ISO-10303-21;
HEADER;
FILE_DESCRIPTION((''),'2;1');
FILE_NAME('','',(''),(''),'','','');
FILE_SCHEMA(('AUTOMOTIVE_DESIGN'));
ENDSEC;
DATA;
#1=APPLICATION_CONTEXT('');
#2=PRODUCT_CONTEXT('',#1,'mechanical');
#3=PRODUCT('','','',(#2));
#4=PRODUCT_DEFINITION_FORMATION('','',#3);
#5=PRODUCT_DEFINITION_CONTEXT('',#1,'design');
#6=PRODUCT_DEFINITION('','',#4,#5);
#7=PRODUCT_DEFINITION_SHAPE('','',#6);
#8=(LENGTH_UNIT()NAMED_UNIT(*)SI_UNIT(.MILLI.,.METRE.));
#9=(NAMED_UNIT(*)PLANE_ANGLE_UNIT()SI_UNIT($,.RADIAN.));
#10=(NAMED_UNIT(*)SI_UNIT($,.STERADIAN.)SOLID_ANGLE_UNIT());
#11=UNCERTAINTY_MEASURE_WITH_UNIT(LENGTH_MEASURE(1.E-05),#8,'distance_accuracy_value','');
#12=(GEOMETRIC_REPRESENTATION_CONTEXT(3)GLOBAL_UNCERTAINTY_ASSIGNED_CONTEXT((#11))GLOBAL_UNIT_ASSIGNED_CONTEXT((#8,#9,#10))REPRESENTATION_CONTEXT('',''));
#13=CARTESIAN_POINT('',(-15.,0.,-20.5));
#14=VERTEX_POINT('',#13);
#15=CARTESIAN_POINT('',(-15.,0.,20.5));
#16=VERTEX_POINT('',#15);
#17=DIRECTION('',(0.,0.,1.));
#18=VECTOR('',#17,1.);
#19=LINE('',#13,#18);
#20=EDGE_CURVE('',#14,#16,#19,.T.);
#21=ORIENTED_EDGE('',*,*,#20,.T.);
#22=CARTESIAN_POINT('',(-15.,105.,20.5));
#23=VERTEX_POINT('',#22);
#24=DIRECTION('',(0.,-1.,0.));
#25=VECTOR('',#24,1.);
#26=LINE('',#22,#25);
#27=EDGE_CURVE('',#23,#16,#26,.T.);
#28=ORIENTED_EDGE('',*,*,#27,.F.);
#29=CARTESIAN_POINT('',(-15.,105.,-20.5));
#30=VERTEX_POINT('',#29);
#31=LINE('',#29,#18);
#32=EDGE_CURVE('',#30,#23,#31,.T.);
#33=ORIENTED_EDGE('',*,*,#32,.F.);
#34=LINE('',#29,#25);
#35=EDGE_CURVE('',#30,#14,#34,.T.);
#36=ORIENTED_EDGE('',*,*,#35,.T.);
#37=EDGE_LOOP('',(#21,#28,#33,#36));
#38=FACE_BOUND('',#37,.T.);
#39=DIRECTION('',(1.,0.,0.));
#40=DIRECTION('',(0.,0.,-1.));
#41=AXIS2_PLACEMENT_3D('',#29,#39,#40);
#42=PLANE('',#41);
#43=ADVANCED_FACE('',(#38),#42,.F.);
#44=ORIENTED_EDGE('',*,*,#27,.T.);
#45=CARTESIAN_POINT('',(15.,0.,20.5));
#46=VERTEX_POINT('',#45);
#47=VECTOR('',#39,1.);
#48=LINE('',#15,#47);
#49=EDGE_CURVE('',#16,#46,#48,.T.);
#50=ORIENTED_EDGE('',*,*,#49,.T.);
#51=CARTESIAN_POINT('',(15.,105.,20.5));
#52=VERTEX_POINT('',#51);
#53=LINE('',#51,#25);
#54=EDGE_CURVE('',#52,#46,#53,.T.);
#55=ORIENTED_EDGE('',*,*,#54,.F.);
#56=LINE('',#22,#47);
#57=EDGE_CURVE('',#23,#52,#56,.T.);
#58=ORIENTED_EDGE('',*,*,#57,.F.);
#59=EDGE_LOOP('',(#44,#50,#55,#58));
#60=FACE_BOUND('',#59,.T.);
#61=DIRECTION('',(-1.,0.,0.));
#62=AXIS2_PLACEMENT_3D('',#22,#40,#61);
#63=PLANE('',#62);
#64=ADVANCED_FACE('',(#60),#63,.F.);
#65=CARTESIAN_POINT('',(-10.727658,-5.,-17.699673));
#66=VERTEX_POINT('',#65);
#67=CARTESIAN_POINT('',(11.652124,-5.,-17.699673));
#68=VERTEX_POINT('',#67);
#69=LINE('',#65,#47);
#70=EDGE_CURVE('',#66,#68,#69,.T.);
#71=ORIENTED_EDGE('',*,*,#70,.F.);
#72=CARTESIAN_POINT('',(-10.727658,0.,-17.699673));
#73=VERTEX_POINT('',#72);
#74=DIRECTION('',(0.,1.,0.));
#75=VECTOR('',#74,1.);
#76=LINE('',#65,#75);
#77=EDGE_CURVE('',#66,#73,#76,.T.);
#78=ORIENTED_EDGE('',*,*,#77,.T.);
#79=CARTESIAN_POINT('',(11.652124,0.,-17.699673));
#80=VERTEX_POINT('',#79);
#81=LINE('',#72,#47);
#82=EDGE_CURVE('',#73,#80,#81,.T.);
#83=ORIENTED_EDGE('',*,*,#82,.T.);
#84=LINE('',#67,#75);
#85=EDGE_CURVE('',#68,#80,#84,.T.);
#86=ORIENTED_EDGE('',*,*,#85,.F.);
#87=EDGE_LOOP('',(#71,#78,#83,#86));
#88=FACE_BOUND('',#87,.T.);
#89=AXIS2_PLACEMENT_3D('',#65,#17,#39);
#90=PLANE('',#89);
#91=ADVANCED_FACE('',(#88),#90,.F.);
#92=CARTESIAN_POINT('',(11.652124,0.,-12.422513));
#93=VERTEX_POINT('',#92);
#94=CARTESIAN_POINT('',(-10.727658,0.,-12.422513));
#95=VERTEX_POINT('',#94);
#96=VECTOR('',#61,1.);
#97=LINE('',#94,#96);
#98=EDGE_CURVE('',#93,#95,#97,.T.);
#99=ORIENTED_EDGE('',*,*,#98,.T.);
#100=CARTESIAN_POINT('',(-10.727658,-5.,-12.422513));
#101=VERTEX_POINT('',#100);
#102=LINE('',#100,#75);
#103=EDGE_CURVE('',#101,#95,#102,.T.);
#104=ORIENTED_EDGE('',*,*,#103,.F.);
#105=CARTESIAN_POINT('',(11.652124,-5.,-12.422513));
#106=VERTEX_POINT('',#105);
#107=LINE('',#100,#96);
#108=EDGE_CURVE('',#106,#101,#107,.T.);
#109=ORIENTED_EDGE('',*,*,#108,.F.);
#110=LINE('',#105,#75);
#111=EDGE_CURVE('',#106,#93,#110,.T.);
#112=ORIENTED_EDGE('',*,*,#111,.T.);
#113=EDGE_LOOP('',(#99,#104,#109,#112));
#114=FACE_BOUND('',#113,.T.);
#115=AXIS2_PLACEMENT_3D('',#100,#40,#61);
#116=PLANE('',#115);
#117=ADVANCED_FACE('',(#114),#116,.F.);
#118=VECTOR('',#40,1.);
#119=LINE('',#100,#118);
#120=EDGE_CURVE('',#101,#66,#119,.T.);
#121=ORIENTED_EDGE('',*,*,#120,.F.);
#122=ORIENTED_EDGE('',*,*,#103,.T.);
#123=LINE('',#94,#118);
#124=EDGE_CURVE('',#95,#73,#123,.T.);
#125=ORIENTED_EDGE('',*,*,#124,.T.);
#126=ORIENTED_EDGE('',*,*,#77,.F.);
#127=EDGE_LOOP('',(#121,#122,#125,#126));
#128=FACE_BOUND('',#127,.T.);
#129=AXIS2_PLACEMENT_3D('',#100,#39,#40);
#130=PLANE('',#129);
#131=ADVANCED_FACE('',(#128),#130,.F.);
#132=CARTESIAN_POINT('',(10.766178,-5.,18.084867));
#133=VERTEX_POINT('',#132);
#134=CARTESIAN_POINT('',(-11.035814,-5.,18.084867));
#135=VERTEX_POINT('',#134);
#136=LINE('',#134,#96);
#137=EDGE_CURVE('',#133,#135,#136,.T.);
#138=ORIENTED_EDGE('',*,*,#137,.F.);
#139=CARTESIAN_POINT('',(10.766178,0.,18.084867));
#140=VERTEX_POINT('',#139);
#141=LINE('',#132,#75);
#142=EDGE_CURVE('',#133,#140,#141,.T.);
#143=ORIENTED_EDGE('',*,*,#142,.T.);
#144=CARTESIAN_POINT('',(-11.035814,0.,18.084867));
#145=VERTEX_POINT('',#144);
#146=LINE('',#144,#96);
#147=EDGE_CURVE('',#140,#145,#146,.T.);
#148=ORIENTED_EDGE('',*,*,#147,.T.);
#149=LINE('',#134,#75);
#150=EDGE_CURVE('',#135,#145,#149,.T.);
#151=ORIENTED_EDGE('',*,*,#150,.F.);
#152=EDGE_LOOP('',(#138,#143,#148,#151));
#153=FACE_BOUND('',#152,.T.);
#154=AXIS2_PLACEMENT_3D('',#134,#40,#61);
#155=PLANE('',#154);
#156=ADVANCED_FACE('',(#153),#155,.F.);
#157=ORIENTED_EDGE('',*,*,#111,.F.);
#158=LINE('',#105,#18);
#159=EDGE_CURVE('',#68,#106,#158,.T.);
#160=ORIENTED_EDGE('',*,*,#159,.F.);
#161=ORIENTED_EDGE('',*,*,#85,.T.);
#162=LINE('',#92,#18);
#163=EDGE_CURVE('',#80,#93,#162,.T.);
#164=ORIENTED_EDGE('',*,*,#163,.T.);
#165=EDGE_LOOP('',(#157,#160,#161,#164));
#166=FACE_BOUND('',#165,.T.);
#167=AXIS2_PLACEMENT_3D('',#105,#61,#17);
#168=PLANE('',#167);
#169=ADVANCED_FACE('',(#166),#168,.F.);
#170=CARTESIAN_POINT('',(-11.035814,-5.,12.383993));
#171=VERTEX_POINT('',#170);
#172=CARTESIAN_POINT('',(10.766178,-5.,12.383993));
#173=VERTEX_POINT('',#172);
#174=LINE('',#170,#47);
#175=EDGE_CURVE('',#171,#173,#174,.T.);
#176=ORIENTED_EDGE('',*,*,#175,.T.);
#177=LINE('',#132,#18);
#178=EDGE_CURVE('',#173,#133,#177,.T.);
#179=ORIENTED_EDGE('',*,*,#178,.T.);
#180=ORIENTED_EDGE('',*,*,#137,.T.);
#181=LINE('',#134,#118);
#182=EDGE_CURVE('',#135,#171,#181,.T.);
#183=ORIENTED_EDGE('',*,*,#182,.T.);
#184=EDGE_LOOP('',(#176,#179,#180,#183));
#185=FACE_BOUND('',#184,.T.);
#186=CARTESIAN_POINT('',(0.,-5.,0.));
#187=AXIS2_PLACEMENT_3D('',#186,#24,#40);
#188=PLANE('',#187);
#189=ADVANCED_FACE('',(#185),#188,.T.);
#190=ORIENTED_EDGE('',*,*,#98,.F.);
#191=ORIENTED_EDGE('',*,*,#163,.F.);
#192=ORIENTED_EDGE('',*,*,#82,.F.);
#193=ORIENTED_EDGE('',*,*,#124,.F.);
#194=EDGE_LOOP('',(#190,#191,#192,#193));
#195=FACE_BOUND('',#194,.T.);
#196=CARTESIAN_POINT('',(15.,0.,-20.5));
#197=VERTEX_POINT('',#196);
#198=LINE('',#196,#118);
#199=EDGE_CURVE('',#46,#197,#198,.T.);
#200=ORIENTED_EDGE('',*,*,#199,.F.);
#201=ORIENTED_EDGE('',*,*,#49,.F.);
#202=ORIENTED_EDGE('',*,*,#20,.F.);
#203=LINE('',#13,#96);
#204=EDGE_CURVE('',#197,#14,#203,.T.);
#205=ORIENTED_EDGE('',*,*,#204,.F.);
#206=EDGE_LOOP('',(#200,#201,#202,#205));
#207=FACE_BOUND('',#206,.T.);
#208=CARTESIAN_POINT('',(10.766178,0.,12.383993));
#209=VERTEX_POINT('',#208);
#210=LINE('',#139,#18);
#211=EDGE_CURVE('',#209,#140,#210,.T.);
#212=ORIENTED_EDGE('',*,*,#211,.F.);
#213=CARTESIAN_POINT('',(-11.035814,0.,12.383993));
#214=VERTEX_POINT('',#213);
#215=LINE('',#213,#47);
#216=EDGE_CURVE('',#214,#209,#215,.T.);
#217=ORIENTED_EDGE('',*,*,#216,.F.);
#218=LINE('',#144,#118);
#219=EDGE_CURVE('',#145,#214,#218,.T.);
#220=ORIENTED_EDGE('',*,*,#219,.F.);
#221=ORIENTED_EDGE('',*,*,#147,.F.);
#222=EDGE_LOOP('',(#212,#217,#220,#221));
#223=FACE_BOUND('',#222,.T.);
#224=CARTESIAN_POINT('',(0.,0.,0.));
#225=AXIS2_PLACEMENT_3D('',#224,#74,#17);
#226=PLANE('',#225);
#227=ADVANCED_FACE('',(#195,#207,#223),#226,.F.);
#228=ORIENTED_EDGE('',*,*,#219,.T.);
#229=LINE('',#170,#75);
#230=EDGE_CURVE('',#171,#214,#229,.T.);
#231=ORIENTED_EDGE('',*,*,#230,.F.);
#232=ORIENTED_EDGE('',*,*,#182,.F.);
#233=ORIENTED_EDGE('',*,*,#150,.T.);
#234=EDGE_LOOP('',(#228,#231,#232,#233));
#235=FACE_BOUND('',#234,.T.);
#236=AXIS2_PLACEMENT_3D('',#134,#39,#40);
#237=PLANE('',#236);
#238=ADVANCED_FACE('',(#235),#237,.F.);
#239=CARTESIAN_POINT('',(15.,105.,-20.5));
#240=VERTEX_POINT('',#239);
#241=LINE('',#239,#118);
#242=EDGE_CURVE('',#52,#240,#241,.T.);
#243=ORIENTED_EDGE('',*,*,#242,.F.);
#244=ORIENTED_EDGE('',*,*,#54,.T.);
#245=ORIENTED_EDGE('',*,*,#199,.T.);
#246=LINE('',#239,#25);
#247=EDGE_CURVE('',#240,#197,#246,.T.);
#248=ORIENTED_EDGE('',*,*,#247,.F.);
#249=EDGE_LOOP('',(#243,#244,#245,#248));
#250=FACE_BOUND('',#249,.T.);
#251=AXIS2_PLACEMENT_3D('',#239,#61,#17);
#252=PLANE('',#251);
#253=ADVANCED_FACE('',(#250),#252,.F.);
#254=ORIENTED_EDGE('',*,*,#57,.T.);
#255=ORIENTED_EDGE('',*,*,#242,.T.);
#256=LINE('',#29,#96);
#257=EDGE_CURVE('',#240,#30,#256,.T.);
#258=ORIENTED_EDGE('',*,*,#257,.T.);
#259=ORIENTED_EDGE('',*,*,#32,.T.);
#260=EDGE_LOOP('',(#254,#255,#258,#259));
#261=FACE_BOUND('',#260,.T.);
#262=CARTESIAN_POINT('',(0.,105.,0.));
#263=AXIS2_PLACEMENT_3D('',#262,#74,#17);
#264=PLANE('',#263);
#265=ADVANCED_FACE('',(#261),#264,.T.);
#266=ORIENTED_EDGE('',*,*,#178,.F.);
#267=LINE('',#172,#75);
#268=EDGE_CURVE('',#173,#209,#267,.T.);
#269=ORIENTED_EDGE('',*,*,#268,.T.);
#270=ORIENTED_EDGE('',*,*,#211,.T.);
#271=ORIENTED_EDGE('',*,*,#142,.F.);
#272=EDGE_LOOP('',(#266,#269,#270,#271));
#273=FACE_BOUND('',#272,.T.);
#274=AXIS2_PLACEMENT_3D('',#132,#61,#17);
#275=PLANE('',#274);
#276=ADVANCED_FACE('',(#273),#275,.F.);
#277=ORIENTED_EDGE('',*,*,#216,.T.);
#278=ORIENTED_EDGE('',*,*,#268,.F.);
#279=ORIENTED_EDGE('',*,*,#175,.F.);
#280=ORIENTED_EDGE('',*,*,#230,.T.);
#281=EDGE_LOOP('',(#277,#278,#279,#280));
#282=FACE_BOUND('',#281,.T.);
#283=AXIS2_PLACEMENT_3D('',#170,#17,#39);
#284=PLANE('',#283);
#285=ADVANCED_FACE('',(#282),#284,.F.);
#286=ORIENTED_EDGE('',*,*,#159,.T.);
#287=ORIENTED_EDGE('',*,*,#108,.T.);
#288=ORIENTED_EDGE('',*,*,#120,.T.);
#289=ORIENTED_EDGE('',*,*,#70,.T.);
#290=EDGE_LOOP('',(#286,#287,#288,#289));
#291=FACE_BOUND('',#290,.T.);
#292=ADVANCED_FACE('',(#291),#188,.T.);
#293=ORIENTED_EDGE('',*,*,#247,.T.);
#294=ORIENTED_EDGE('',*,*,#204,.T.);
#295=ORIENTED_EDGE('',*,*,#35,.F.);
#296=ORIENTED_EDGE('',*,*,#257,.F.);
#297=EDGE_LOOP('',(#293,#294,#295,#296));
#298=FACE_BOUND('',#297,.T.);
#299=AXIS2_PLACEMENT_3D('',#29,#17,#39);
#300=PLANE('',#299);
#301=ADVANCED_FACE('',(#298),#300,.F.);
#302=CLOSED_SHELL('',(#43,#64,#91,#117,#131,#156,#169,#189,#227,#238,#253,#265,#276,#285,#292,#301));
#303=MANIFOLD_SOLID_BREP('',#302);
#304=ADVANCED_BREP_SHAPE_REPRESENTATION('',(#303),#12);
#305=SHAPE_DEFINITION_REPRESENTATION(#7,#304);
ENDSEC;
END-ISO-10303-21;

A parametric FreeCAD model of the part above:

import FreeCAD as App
import Part
import Sketcher
from FreeCAD import Vector
Q = App.Units.Quantity

doc = App.newDocument("Part")
params = doc.addObject("Spreadsheet::Sheet", "Params")
for row, (alias, value) in enumerate([
    ("sketch1_width", "30 mm"),
    ("sketch1_height", "41 mm"),
    ("pad1_length", "105 mm"),
    ("pad2_length", "5 mm"),
], start=1):
    params.set(f"A{row}", alias)
    params.set(f"B{row}", "=" + value)
    params.setAlias(f"B{row}", alias)

body = doc.addObject("PartDesign::Body", "Body")

sketch1 = doc.addObject("Sketcher::SketchObject", "Sketch")
body.addObject(sketch1)
sketch1.AttachmentSupport = (doc.XZ_Plane, [""])
sketch1.MapMode = "FlatFace"
sketch1.addGeometry([
    Part.LineSegment(Vector(-15, -20.5, 0), Vector(-15, 20.5, 0)),
    Part.LineSegment(Vector(-15, 20.5, 0), Vector(15, 20.5, 0)),
    Part.LineSegment(Vector(15, 20.5, 0), Vector(15, -20.5, 0)),
    Part.LineSegment(Vector(15, -20.5, 0), Vector(-15, -20.5, 0)),
], False)
sketch1.addConstraint([
    Sketcher.Constraint("Coincident", 0, 2, 1, 1),
    Sketcher.Constraint("Coincident", 1, 2, 2, 1),
    Sketcher.Constraint("Coincident", 2, 2, 3, 1),
    Sketcher.Constraint("Coincident", 3, 2, 0, 1),
    Sketcher.Constraint("Vertical", 0),
    Sketcher.Constraint("Horizontal", 1),
    Sketcher.Constraint("Vertical", 2),
    Sketcher.Constraint("Horizontal", 3),
    Sketcher.Constraint("Symmetric", 0, 2, 2, 2, -1, 1),
    Sketcher.Constraint("DistanceX", 1, 1, 1, 2, Q("30 mm")),
    Sketcher.Constraint("DistanceY", 0, 1, 0, 2, Q("41 mm")),
])
sketch1.setExpression("Constraints[9]", "Params.sketch1_width")
sketch1.setExpression("Constraints[10]", "Params.sketch1_height")
pad1 = doc.addObject("PartDesign::Pad", "Pad")
body.addObject(pad1)
pad1.Profile = sketch1
pad1.setExpression("Length", "Params.pad1_length")
pad1.Reversed = True

sketch2 = doc.addObject("Sketcher::SketchObject", "Sketch001")
body.addObject(sketch2)
sketch2.AttachmentSupport = (doc.XZ_Plane, [""])
sketch2.MapMode = "FlatFace"
sketch2.addGeometry([
    Part.LineSegment(Vector(-11.035814, 18.084867, 0), Vector(-11.035814, 12.383993, 0)),
    Part.LineSegment(Vector(-11.035814, 12.383993, 0), Vector(10.766178, 12.383993, 0)),
    Part.LineSegment(Vector(10.766178, 12.383993, 0), Vector(10.766178, 18.084867, 0)),
    Part.LineSegment(Vector(10.766178, 18.084867, 0), Vector(-11.035814, 18.084867, 0)),
    Part.LineSegment(Vector(-10.727658, -12.422513, 0), Vector(-10.727658, -17.699673, 0)),
    Part.LineSegment(Vector(-10.727658, -17.699673, 0), Vector(11.652124, -17.699673, 0)),
    Part.LineSegment(Vector(11.652124, -17.699673, 0), Vector(11.652124, -12.422513, 0)),
    Part.LineSegment(Vector(11.652124, -12.422513, 0), Vector(-10.727658, -12.422513, 0)),
], False)
sketch2.addConstraint([
    Sketcher.Constraint("Coincident", 0, 2, 1, 1),
    Sketcher.Constraint("Coincident", 1, 2, 2, 1),
    Sketcher.Constraint("Coincident", 2, 2, 3, 1),
    Sketcher.Constraint("Coincident", 3, 2, 0, 1),
    Sketcher.Constraint("Coincident", 4, 2, 5, 1),
    Sketcher.Constraint("Coincident", 5, 2, 6, 1),
    Sketcher.Constraint("Coincident", 6, 2, 7, 1),
    Sketcher.Constraint("Coincident", 7, 2, 4, 1),
    Sketcher.Constraint("Vertical", 0),
    Sketcher.Constraint("Horizontal", 1),
    Sketcher.Constraint("Vertical", 2),
    Sketcher.Constraint("Horizontal", 3),
    Sketcher.Constraint("Vertical", 4),
    Sketcher.Constraint("Horizontal", 5),
    Sketcher.Constraint("Vertical", 6),
    Sketcher.Constraint("Horizontal", 7),
    Sketcher.Constraint("DistanceX", 1, 1, 1, 2, Q("21.801991 mm")),
    Sketcher.Constraint("DistanceY", 4, 2, 4, 1, Q("5.27716 mm")),
    Sketcher.Constraint("DistanceX", 5, 1, 5, 2, Q("22.379782 mm")),
    Sketcher.Constraint("DistanceY", 0, 2, 0, 1, Q("5.700874 mm")),
    Sketcher.Constraint("DistanceX", 4, 2, -1, 1, Q("10.727658 mm")),
    Sketcher.Constraint("DistanceY", 4, 2, 3, 2, Q("35.78454 mm")),
    Sketcher.Constraint("DistanceX", 0, 2, -1, 1, Q("11.035814 mm")),
    Sketcher.Constraint("DistanceY", -1, 1, 0, 2, Q("12.383993 mm")),
])
pad2 = doc.addObject("PartDesign::Pad", "Pad001")
body.addObject(pad2)
pad2.Profile = sketch2
pad2.setExpression("Length", "Params.pad2_length")

doc.recompute()
